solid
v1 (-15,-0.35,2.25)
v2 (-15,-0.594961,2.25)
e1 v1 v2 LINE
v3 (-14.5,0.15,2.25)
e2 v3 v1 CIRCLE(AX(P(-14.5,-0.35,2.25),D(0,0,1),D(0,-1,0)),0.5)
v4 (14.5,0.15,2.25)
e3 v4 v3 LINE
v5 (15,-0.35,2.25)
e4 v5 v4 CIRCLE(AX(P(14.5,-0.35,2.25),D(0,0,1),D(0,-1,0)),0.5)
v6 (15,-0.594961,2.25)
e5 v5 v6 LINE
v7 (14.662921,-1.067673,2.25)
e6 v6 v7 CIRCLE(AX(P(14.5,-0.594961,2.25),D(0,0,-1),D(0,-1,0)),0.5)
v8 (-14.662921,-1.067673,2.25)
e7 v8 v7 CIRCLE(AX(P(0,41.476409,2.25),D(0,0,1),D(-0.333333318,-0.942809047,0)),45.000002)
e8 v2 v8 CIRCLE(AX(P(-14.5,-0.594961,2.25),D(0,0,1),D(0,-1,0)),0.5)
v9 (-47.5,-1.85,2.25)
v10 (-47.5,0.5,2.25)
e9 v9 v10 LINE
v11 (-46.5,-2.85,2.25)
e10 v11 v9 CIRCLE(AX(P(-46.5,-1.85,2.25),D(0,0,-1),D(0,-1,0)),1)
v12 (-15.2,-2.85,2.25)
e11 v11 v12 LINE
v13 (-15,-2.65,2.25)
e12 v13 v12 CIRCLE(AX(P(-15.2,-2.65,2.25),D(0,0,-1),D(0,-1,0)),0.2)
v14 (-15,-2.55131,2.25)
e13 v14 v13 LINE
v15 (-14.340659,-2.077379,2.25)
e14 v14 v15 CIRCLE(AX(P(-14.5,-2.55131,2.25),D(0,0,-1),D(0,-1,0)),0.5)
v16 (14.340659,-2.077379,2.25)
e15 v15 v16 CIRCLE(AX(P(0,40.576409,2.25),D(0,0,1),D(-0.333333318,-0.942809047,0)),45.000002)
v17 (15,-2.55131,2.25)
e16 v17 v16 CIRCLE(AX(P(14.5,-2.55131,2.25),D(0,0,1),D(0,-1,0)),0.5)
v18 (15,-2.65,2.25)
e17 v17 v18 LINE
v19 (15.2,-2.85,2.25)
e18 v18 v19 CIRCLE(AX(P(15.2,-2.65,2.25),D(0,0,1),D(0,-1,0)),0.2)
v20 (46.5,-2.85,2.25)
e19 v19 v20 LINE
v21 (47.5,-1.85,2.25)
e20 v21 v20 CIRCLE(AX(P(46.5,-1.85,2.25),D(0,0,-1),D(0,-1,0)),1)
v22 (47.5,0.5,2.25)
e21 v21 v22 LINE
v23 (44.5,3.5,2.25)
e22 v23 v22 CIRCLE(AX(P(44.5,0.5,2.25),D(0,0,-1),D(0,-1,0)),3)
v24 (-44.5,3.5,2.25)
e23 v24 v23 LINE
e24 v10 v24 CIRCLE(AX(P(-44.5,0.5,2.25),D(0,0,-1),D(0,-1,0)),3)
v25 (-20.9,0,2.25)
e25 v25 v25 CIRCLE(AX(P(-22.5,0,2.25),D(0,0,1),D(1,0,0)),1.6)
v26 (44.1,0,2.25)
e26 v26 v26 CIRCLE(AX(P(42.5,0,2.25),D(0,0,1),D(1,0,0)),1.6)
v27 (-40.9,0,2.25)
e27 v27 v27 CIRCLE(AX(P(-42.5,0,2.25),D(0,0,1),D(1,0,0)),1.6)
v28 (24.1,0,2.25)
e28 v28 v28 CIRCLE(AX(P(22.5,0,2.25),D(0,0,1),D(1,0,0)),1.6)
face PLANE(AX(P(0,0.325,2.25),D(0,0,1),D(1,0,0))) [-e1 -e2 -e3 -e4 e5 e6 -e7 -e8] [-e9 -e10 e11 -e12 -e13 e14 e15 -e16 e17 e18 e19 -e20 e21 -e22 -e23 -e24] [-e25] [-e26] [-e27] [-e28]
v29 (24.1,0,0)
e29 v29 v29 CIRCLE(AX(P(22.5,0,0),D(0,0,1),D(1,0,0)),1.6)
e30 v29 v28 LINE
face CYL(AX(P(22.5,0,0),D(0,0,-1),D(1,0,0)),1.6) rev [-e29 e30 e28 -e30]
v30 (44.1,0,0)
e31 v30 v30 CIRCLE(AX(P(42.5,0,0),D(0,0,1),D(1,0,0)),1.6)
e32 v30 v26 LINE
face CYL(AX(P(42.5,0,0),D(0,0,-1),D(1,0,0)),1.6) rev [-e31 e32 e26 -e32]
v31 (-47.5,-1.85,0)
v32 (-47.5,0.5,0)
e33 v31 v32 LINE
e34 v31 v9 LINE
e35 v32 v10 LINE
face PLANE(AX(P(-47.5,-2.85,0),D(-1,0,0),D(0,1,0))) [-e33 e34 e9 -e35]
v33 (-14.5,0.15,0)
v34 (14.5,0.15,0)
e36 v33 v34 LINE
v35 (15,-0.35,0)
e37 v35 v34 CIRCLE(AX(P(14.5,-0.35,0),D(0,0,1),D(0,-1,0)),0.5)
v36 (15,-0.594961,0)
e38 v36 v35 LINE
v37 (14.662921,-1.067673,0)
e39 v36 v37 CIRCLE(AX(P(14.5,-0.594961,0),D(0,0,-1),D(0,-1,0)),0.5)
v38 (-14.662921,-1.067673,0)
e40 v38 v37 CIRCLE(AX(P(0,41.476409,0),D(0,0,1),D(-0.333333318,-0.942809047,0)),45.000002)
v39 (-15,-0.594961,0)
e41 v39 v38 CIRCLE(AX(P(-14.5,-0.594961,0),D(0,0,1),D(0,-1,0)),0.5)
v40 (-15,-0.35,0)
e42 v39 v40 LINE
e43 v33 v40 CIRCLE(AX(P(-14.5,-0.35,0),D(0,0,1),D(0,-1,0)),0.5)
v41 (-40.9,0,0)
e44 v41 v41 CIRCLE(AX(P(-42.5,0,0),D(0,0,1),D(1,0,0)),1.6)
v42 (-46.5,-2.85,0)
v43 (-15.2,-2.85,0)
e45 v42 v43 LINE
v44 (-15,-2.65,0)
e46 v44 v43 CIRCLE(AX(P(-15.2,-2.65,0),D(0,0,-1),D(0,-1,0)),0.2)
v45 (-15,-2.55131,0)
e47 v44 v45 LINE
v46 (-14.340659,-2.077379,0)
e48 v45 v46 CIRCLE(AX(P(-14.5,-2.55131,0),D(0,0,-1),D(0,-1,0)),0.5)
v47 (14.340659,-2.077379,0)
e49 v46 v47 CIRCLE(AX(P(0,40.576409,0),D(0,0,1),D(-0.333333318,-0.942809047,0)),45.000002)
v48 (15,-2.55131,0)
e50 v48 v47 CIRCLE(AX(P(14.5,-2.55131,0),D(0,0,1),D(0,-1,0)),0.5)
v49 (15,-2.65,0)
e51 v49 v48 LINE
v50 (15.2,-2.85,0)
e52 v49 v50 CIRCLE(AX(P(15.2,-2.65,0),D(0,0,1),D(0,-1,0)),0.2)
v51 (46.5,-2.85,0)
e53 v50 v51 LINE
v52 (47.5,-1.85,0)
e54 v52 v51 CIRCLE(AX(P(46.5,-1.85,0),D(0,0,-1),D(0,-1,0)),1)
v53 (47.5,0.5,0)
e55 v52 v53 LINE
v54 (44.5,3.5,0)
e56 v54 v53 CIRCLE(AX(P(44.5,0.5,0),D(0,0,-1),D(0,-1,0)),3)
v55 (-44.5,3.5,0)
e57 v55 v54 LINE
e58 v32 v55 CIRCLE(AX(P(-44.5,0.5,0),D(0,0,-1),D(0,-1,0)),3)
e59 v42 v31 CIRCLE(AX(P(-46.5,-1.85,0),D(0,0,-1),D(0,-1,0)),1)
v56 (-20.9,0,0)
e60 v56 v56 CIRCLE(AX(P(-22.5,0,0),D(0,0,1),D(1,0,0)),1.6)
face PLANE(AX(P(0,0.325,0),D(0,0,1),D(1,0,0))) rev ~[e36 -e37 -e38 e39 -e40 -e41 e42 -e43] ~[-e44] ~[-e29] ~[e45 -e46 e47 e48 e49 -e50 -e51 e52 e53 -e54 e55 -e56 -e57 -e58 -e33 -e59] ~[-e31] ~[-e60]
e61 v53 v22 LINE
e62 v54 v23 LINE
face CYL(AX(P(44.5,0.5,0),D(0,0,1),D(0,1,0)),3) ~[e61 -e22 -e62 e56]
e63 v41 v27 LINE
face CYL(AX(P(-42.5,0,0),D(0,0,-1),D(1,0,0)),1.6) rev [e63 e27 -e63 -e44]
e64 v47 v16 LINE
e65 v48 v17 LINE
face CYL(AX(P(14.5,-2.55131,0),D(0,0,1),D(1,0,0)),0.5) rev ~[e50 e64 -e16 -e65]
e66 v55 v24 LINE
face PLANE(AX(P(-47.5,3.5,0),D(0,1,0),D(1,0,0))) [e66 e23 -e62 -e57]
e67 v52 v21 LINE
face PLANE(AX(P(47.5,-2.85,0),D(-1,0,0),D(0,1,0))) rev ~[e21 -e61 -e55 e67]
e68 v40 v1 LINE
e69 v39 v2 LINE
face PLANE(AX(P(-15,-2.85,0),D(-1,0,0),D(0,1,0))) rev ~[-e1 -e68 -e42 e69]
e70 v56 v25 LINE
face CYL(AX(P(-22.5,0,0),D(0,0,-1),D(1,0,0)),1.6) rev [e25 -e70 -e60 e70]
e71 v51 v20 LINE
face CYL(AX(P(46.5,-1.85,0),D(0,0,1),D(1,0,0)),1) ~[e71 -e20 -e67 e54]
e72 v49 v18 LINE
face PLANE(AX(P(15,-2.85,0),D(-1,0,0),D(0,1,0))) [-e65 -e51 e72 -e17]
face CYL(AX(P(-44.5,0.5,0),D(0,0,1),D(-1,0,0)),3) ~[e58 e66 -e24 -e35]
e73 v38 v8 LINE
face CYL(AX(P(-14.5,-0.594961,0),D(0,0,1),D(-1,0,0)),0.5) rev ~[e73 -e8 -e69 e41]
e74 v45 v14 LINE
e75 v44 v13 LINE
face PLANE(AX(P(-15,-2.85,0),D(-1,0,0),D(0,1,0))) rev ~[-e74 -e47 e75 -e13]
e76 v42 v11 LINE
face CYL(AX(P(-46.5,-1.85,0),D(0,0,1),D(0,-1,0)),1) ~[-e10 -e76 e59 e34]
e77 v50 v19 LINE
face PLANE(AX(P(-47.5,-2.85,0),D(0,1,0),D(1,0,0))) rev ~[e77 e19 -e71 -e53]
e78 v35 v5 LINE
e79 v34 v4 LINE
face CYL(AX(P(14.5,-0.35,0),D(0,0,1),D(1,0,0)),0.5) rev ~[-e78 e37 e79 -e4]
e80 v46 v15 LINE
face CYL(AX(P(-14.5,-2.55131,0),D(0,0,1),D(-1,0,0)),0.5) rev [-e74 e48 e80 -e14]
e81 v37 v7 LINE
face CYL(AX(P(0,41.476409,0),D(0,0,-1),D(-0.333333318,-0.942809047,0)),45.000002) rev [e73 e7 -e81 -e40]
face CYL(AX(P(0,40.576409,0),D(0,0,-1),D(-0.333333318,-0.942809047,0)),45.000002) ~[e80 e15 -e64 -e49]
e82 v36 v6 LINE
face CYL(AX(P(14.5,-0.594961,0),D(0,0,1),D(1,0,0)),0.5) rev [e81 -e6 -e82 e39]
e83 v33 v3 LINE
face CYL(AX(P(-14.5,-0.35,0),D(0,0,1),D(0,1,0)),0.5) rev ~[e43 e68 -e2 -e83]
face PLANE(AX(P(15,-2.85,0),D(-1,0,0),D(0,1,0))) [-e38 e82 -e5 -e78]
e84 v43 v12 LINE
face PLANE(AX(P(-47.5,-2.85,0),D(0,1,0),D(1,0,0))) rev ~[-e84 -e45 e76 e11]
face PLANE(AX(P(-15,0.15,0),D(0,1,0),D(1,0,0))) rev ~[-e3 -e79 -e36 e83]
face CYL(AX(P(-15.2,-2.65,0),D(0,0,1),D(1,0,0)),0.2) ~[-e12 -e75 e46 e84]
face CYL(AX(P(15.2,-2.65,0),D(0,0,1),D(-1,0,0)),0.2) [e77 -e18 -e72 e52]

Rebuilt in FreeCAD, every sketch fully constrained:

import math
import FreeCAD as App
import Part
import Sketcher
from FreeCAD import Vector


def edges_at(feature, points):
    """Names of the edges that pass closest to the given points."""
    edges = feature.Shape.Edges
    near = lambda p: min(range(len(edges)), key=lambda i: edges[i].distToShape(Part.Vertex(*p))[0])
    return sorted({f"Edge{near(p) + 1}" for p in points})


def add_polygon(sketch, points):
    """Adds a closed chain of lines whose ends are joined by coincident constraints."""
    first, n = sketch.GeometryCount, len(points)
    for a, b in zip(points, points[1:] + points[:1]):
        sketch.addGeometry(Part.LineSegment(App.Vector(*a, 0), App.Vector(*b, 0)), False)
    for i in range(n):
        sketch.addConstraint(Sketcher.Constraint("Coincident", first + i, 2, first + (i + 1) % n, 1))

doc = App.newDocument("Part")
body = doc.addObject("PartDesign::Body", "Body")

sketch1 = body.newObject("Sketcher::SketchObject", "Sketch")
sketch1.AttachmentSupport = (doc.getObject("XY_Plane"), [""])
sketch1.MapMode = "FlatFace"
add_polygon(sketch1, [(-47.5, 3.5), (-47.5, -2.85), (47.5, -2.85), (47.5, 3.5)])
sketch1.addGeometry(Part.Circle(Vector(-42.5, 0, 0), Vector(0, 0, 1), 1.6), False)
sketch1.addGeometry(Part.Circle(Vector(-22.5, 0, 0), Vector(0, 0, 1), 1.6), False)
sketch1.addGeometry(Part.Circle(Vector(22.5, 0, 0), Vector(0, 0, 1), 1.6), False)
sketch1.addGeometry(Part.Circle(Vector(42.5, 0, 0), Vector(0, 0, 1), 1.6), False)
sketch1.addConstraint([
    Sketcher.Constraint("Vertical", 0),
    Sketcher.Constraint("Horizontal", 1),
    Sketcher.Constraint("Vertical", 2),
    Sketcher.Constraint("Horizontal", 3),
    Sketcher.Constraint("Equal", 4, 5),
    Sketcher.Constraint("Equal", 5, 6),
    Sketcher.Constraint("Equal", 6, 7),
    Sketcher.Constraint("Symmetric", 5, 3, 6, 3, -1, 1),
    Sketcher.Constraint("Symmetric", 4, 3, 7, 3, -1, 1),
    Sketcher.Constraint("PointOnObject", 4, 3, -1),
    Sketcher.Constraint("PointOnObject", 5, 3, -1),
    Sketcher.Constraint("Diameter", 4, 3.2),
    Sketcher.Constraint("DistanceX", 1, 1, 1, 2, 95.0),
    Sketcher.Constraint("DistanceX", 4, 3, 5, 3, 20.0),
    Sketcher.Constraint("DistanceX", 5, 3, 6, 3, 45.0),
    Sketcher.Constraint("DistanceX", 0, 2, 4, 3, 5.0),
    Sketcher.Constraint("DistanceY", 0, 2, 0, 1, 6.35),
    Sketcher.Constraint("DistanceY", -1, 1, 2, 2, 3.5),
])
pad1 = body.newObject("PartDesign::Pad", "Pad")
pad1.Profile = sketch1
pad1.Length = 2.25

sketch2 = body.newObject("Sketcher::SketchObject", "Sketch001")
sketch2.AttachmentSupport = (doc.getObject("XY_Plane"), [""])
sketch2.MapMode = "FlatFace"
add_polygon(sketch2, [(-15, 0.15), (-15, -2.85), (15, -2.85), (15, 0.15)])
sketch2.addConstraint([
    Sketcher.Constraint("Vertical", 0),
    Sketcher.Constraint("Horizontal", 1),
    Sketcher.Constraint("Vertical", 2),
    Sketcher.Constraint("Horizontal", 3),
    Sketcher.Constraint("DistanceX", 1, 1, 1, 2, 30.0),
    Sketcher.Constraint("DistanceY", 0, 2, 0, 1, 3.0),
    Sketcher.Constraint("DistanceX", 0, 2, -1, 1, 15.0),
    Sketcher.Constraint("DistanceY", 0, 2, -1, 1, 2.85),
])
pocket1 = body.newObject("PartDesign::Pocket", "Pocket")
pocket1.Profile = sketch2
pocket1.Type = "ThroughAll"
pocket1.Midplane = True

sketch3 = body.newObject("Sketcher::SketchObject", "Sketch002")
sketch3.AttachmentSupport = (doc.getObject("XY_Plane"), [""])
sketch3.MapMode = "FlatFace"
sketch3.addGeometry([
    Part.ArcOfCircle(Part.Circle(Vector(0, 40.576409, 0), Vector(0, 0, 1), 45.000002), math.radians(-109.47122), math.radians(-70.52878)),
    Part.LineSegment(Vector(15, -1.85, 0), Vector(15, -0.95, 0)),
    Part.ArcOfCircle(Part.Circle(Vector(0, 41.476409, 0), Vector(0, 0, 1), 45.000002), math.radians(-109.47122), math.radians(-70.52878)),
    Part.LineSegment(Vector(-15, -0.95, 0), Vector(-15, -1.85, 0)),
], False)
sketch3.addConstraint([
    Sketcher.Constraint("Coincident", 0, 2, 1, 1),
    Sketcher.Constraint("Coincident", 1, 2, 2, 2),
    Sketcher.Constraint("Coincident", 2, 1, 3, 1),
    Sketcher.Constraint("Coincident", 3, 2, 0, 1),
    Sketcher.Constraint("Vertical", 1),
    Sketcher.Constraint("Vertical", 3),
    Sketcher.Constraint("Equal", 0, 2),
    Sketcher.Constraint("Symmetric", 1, 2, 2, 1, -2),
    Sketcher.Constraint("PointOnObject", 0, 3, -2),
    Sketcher.Constraint("DistanceY", 1, 1, 1, 2, 0.9),
    Sketcher.Constraint("DistanceX", -1, 1, 0, 2, 15.0),
    Sketcher.Constraint("DistanceY", 0, 2, -1, 1, 1.85),
    Sketcher.Constraint("Radius", 0, 45.000002),
])
pad2 = body.newObject("PartDesign::Pad", "Pad001")
pad2.Profile = sketch3
pad2.Length = 2.25
doc.recompute()

fillet = body.newObject("PartDesign::Fillet", "Fillet")
fillet.Base = (pad2, edges_at(pad2, [
    (15, 0.15, 1.125),
    (-15, 0.15, 1.125),
    (-15, -0.95, 1.125),
    (15, -0.95, 1.125),
    (-15, -1.85, 1.125),
    (15, -1.85, 1.125),
]))
fillet.Radius = 0.5
doc.recompute()

fillet2 = body.newObject("PartDesign::Fillet", "Fillet001")
fillet2.Base = (fillet, edges_at(fillet, [(15, -2.85, 1.125), (-15, -2.85, 1.125)]))
fillet2.Radius = 0.2
doc.recompute()

fillet3 = body.newObject("PartDesign::Fillet", "Fillet002")
fillet3.Base = (fillet2, edges_at(fillet2, [(-47.5, -2.85, 1.125), (47.5, -2.85, 1.125)]))
fillet3.Radius = 1
doc.recompute()

fillet4 = body.newObject("PartDesign::Fillet", "Fillet003")
fillet4.Base = (fillet3, edges_at(fillet3, [(-47.5, 3.5, 1.125), (47.5, 3.5, 1.125)]))
fillet4.Radius = 3

doc.recompute()
